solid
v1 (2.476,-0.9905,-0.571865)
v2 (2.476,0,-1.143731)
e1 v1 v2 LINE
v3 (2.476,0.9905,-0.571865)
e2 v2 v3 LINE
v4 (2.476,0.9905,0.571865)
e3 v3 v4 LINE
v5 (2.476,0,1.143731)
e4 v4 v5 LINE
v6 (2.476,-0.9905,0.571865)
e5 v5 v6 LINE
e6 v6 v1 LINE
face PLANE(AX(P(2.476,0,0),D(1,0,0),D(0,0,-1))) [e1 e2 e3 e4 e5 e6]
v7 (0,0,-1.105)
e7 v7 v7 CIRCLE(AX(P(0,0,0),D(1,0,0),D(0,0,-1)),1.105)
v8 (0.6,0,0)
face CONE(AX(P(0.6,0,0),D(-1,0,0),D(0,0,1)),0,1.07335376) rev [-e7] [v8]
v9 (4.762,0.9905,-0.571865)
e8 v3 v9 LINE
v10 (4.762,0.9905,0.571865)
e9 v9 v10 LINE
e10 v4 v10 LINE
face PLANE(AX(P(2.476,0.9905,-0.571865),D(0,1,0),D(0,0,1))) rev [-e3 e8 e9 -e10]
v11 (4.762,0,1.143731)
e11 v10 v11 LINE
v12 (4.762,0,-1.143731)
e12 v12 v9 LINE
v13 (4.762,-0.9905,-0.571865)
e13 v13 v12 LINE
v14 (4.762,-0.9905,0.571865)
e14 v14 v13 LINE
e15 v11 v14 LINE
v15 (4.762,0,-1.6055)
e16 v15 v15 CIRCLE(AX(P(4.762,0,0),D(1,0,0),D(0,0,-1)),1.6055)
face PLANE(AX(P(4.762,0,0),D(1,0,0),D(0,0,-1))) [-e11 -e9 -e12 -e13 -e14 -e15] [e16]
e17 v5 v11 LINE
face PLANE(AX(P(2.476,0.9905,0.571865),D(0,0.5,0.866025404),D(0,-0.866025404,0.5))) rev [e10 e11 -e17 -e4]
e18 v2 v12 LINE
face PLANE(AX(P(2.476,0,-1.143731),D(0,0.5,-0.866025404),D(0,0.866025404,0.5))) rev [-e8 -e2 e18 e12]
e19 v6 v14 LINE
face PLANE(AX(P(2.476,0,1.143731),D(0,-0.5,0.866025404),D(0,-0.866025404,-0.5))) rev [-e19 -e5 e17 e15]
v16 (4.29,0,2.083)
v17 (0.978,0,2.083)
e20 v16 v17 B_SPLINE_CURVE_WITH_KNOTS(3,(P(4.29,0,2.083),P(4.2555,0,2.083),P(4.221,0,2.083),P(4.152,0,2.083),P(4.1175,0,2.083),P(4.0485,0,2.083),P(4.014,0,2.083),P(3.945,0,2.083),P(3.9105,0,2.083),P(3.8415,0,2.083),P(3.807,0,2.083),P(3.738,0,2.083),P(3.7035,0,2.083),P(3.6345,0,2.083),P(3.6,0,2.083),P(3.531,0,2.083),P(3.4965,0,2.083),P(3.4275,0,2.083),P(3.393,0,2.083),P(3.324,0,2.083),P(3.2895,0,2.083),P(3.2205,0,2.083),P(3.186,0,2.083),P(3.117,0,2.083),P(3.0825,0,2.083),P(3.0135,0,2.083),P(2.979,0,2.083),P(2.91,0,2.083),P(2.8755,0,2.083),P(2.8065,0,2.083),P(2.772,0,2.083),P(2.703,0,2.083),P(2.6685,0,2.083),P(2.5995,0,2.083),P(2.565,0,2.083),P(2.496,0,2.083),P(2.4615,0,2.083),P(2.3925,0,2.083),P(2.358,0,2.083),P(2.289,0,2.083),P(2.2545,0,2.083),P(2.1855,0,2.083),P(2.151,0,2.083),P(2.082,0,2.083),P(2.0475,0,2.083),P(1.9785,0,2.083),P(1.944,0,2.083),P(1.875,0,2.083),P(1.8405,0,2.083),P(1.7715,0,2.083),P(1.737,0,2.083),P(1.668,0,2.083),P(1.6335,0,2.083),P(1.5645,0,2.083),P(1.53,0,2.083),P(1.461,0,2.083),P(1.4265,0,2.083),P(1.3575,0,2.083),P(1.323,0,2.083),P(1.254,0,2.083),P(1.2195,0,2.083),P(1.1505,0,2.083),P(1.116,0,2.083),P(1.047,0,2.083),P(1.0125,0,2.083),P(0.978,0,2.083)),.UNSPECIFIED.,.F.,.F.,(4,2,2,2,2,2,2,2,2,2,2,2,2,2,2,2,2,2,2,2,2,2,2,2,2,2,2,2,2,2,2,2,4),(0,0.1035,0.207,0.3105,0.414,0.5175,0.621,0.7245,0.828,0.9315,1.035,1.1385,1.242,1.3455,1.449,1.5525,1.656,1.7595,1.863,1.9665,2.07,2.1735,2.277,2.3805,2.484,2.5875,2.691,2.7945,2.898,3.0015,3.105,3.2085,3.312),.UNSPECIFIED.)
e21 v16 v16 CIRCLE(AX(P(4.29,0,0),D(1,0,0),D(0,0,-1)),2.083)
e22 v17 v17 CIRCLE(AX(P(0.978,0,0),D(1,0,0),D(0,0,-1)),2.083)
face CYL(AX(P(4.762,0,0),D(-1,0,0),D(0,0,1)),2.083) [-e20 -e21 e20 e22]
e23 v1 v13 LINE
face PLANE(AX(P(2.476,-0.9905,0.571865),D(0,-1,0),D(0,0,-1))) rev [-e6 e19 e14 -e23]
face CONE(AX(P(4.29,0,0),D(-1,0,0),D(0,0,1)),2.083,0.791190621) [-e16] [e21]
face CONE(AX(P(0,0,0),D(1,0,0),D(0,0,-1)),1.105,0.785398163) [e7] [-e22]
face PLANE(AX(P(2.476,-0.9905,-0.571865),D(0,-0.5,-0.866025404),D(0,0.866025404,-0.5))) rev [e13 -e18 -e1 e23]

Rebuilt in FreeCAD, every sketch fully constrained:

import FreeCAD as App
import Part
import Sketcher
Q = App.Units.Quantity

doc = App.newDocument("Part")
body = doc.addObject("PartDesign::Body", "Body")

# Sketch on YZ plane
sketch1 = doc.addObject("Sketcher::SketchObject", "Sketch")
body.addObject(sketch1)
sketch1.AttachmentSupport = (doc.YZ_Plane, [""])
sketch1.MapMode = "FlatFace"
sketch1.addGeometry(Part.Circle(App.Vector(0, 0, 0), App.Vector(0, 0, 1), 2.083), False)
sketch1.addConstraint([
    Sketcher.Constraint("Coincident", 0, 3, -1, 1),
    Sketcher.Constraint("Diameter", 0, 4.166),
])
pad1 = doc.addObject("PartDesign::Pad", "Pad")
body.addObject(pad1)
pad1.Profile = sketch1
pad1.Length = 4.762

# Sketch on XY plane
sketch2 = doc.addObject("Sketcher::SketchObject", "Sketch001")
body.addObject(sketch2)
sketch2.AttachmentSupport = (doc.XY_Plane, [""])
sketch2.MapMode = "FlatFace"
sketch2.addGeometry([
    Part.LineSegment(App.Vector(0, 1.105, 0), App.Vector(0.978, 2.083, 0)),
    Part.LineSegment(App.Vector(0.978, 2.083, 0), App.Vector(0, 2.083, 0)),
    Part.LineSegment(App.Vector(0, 2.083, 0), App.Vector(0, 1.105, 0)),
], False)
sketch2.addConstraint([
    Sketcher.Constraint("Coincident", 0, 2, 1, 1),
    Sketcher.Constraint("Coincident", 1, 2, 2, 1),
    Sketcher.Constraint("Coincident", 2, 2, 0, 1),
    Sketcher.Constraint("Horizontal", 1),
    Sketcher.Constraint("Vertical", 2),
    Sketcher.Constraint("PointOnObject", 1, 2, -2),
    Sketcher.Constraint("Equal", 1, 2),
    Sketcher.Constraint("DistanceX", 1, 2, 1, 1, 0.978),
    Sketcher.Constraint("DistanceY", -1, 1, 0, 2, 2.083),
])
groove = doc.addObject("PartDesign::Groove", "Groove")
body.addObject(groove)
groove.Profile = sketch2
groove.ReferenceAxis = (sketch2, ["H_Axis"])
groove.Angle = 360

# Sketch on XY plane
sketch3 = doc.addObject("Sketcher::SketchObject", "Sketch002")
body.addObject(sketch3)
sketch3.AttachmentSupport = (doc.XY_Plane, [""])
sketch3.MapMode = "FlatFace"
sketch3.addGeometry([
    Part.LineSegment(App.Vector(4.762, 2.083, 0), App.Vector(4.29, 2.083, 0)),
    Part.LineSegment(App.Vector(4.29, 2.083, 0), App.Vector(4.762, 1.6055, 0)),
    Part.LineSegment(App.Vector(4.762, 1.6055, 0), App.Vector(4.762, 2.083, 0)),
], False)
sketch3.addConstraint([
    Sketcher.Constraint("Coincident", 0, 2, 1, 1),
    Sketcher.Constraint("Coincident", 1, 2, 2, 1),
    Sketcher.Constraint("Coincident", 2, 2, 0, 1),
    Sketcher.Constraint("Horizontal", 0),
    Sketcher.Constraint("Vertical", 2),
    Sketcher.Constraint("DistanceX", 0, 2, 0, 1, 0.472),
    Sketcher.Constraint("DistanceX", -1, 1, 0, 2, 4.29),
    Sketcher.Constraint("DistanceY", 2, 1, 2, 2, 0.4775),
    Sketcher.Constraint("DistanceY", -1, 1, 0, 2, 2.083),
])
groove2 = doc.addObject("PartDesign::Groove", "Groove001")
body.addObject(groove2)
groove2.Profile = sketch3
groove2.ReferenceAxis = (sketch3, ["H_Axis"])
groove2.Angle = 360

# Sketch on XY plane
sketch4 = doc.addObject("Sketcher::SketchObject", "Sketch003")
body.addObject(sketch4)
sketch4.AttachmentSupport = (doc.XY_Plane, [""])
sketch4.MapMode = "FlatFace"
sketch4.addGeometry([
    Part.LineSegment(App.Vector(0, 1.105, 0), App.Vector(0, 0, 0)),
    Part.LineSegment(App.Vector(0, 0, 0), App.Vector(0.6, 0, 0)),
    Part.LineSegment(App.Vector(0.6, 0, 0), App.Vector(0, 1.105, 0)),
], False)
sketch4.addConstraint([
    Sketcher.Constraint("Coincident", 0, 2, 1, 1),
    Sketcher.Constraint("Coincident", 1, 2, 2, 1),
    Sketcher.Constraint("Coincident", 2, 2, 0, 1),
    Sketcher.Constraint("Vertical", 0),
    Sketcher.Constraint("Horizontal", 1),
    Sketcher.Constraint("Coincident", 0, 2, -1, 1),
    Sketcher.Constraint("DistanceX", 1, 1, 1, 2, 0.6),
    Sketcher.Constraint("DistanceY", 0, 2, 0, 1, 1.105),
])
groove3 = doc.addObject("PartDesign::Groove", "Groove002")
body.addObject(groove3)
groove3.Profile = sketch4
groove3.ReferenceAxis = (sketch4, ["H_Axis"])
groove3.Angle = 360

# Sketch on YZ plane
sketch5 = doc.addObject("Sketcher::SketchObject", "Sketch004")
body.addObject(sketch5)
sketch5.AttachmentSupport = (doc.YZ_Plane, [""])
sketch5.MapMode = "FlatFace"
sketch5.AttachmentOffset = App.Placement(App.Vector(0, 0, 4.762), App.Rotation())
sketch5.addGeometry([
    Part.LineSegment(App.Vector(0.9905, -0.571865, 0), App.Vector(0.9905, 0.571865, 0)),  # 0
    Part.LineSegment(App.Vector(0.9905, 0.571865, 0), App.Vector(0, 1.143731, 0)),  # 1
    Part.LineSegment(App.Vector(0, 1.143731, 0), App.Vector(-0.9905, 0.571865, 0)),  # 2
    Part.LineSegment(App.Vector(-0.9905, 0.571865, 0), App.Vector(-0.9905, -0.571865, 0)),  # 3
    Part.LineSegment(App.Vector(-0.9905, -0.571865, 0), App.Vector(0, -1.143731, 0)),  # 4
    Part.LineSegment(App.Vector(0, -1.143731, 0), App.Vector(0.9905, -0.571865, 0)),  # 5
], False)
sketch5.addConstraint([
    Sketcher.Constraint("Coincident", 0, 2, 1, 1),
    Sketcher.Constraint("Coincident", 1, 2, 2, 1),
    Sketcher.Constraint("Coincident", 2, 2, 3, 1),
    Sketcher.Constraint("Coincident", 3, 2, 4, 1),
    Sketcher.Constraint("Coincident", 4, 2, 5, 1),
    Sketcher.Constraint("Coincident", 5, 2, 0, 1),
    Sketcher.Constraint("Vertical", 0),
    Sketcher.Constraint("Vertical", 3),
    Sketcher.Constraint("Symmetric", 0, 2, 3, 2, -1, 1),
    Sketcher.Constraint("Symmetric", 1, 2, 4, 2, -1, 1),
    Sketcher.Constraint("PointOnObject", 1, 2, -2),
    Sketcher.Constraint("Parallel", 2, 5),
    Sketcher.Constraint("Horizontal", 0, 2, 2, 2),
    Sketcher.Constraint("Angle", 1, Q("150 deg")),
    Sketcher.Constraint("DistanceX", 2, 2, 0, 2, 1.981),
    Sketcher.Constraint("DistanceY", 0, 1, 0, 2, 1.143731),
])
pocket1 = doc.addObject("PartDesign::Pocket", "Pocket")
body.addObject(pocket1)
pocket1.Profile = sketch5
pocket1.Length = 2.286

doc.recompute()
